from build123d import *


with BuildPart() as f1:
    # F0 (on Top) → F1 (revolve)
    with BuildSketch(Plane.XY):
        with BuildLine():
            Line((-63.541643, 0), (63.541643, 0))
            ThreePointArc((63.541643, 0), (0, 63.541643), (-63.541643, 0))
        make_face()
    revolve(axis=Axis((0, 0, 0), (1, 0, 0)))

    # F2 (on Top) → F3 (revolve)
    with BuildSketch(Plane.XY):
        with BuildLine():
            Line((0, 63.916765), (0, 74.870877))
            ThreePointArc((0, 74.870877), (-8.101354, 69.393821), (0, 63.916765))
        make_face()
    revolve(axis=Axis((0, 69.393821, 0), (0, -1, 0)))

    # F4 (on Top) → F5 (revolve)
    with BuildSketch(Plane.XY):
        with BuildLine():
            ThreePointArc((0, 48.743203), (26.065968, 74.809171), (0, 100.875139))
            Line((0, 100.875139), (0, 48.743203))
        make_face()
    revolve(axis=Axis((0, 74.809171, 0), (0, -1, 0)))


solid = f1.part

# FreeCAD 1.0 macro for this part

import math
import FreeCAD as App
import Part
import Sketcher
Q = App.Units.Quantity

doc = App.newDocument("Part")
body = doc.addObject("PartDesign::Body", "Body")

# Sketch on XY plane
sketch1 = body.newObject("Sketcher::SketchObject", "Sketch")
sketch1.AttachmentSupport = (doc.getObject("XY_Plane"), [""])
sketch1.MapMode = "FlatFace"
sketch1.addGeometry([
    Part.LineSegment(App.Vector(-64, 0, 0), App.Vector(64, 0, 0)),
    Part.ArcOfCircle(Part.Circle(App.Vector(0, 0, 0), App.Vector(0, 0, 1), 64), math.radians(0), math.radians(180)),
], False)
sketch1.addConstraint([
    Sketcher.Constraint("Coincident", 0, 1, 1, 2),
    Sketcher.Constraint("Coincident", 1, 1, 0, 2),
    Sketcher.Constraint("Horizontal", 0),
    Sketcher.Constraint("Coincident", 1, 3, -1, 1),
    Sketcher.Constraint("PointOnObject", 0, 1, -1),
    Sketcher.Constraint("Radius", 1, Q("63.541643 mm")),
])
revolution = body.newObject("PartDesign::Revolution", "Revolution")
revolution.Profile = sketch1
revolution.ReferenceAxis = (sketch1, ["H_Axis"])
revolution.Angle = 360

# Sketch on XY plane
sketch2 = body.newObject("Sketcher::SketchObject", "Sketch001")
sketch2.AttachmentSupport = (doc.getObject("XY_Plane"), [""])
sketch2.MapMode = "FlatFace"
sketch2.addGeometry([
    Part.LineSegment(App.Vector(0, 64, 0), App.Vector(0, 75, 0)),
    Part.ArcOfCircle(Part.Circle(App.Vector(-2, 69, 0), App.Vector(0, 0, 1), 6), math.radians(68), math.radians(292)),
], False)
sketch2.addConstraint([
    Sketcher.Constraint("Coincident", 0, 1, 1, 2),
    Sketcher.Constraint("Coincident", 1, 1, 0, 2),
    Sketcher.Constraint("Vertical", 0),
    Sketcher.Constraint("PointOnObject", 0, 1, -2),
    Sketcher.Constraint("Radius", 1, Q("5.902105 mm")),
    Sketcher.Constraint("DistanceY", 0, 1, 0, 2, Q("10.954112 mm")),
    Sketcher.Constraint("DistanceY", -1, 1, 1, 3, Q("69.393821 mm")),
])
revolution2 = body.newObject("PartDesign::Revolution", "Revolution001")
revolution2.Profile = sketch2
revolution2.ReferenceAxis = (sketch2, ["V_Axis"])
revolution2.Angle = 360

# Sketch on XY plane
sketch3 = body.newObject("Sketcher::SketchObject", "Sketch002")
sketch3.AttachmentSupport = (doc.getObject("XY_Plane"), [""])
sketch3.MapMode = "FlatFace"
sketch3.addGeometry([
    Part.ArcOfCircle(Part.Circle(App.Vector(0, 75, 0), App.Vector(0, 0, 1), 26), math.radians(-90), math.radians(90)),
    Part.LineSegment(App.Vector(0, 101, 0), App.Vector(0, 49, 0)),
], False)
sketch3.addConstraint([
    Sketcher.Constraint("Coincident", 0, 1, 1, 2),
    Sketcher.Constraint("Coincident", 1, 1, 0, 2),
    Sketcher.Constraint("Vertical", 1),
    Sketcher.Constraint("PointOnObject", 0, 3, -2),
    Sketcher.Constraint("PointOnObject", 0, 1, -2),
    Sketcher.Constraint("Radius", 0, Q("26.065968 mm")),
    Sketcher.Constraint("DistanceY", -1, 1, 0, 3, Q("74.809171 mm")),
])
revolution3 = body.newObject("PartDesign::Revolution", "Revolution002")
revolution3.Profile = sketch3
revolution3.ReferenceAxis = (sketch3, ["V_Axis"])
revolution3.Angle = 360

doc.recompute()
